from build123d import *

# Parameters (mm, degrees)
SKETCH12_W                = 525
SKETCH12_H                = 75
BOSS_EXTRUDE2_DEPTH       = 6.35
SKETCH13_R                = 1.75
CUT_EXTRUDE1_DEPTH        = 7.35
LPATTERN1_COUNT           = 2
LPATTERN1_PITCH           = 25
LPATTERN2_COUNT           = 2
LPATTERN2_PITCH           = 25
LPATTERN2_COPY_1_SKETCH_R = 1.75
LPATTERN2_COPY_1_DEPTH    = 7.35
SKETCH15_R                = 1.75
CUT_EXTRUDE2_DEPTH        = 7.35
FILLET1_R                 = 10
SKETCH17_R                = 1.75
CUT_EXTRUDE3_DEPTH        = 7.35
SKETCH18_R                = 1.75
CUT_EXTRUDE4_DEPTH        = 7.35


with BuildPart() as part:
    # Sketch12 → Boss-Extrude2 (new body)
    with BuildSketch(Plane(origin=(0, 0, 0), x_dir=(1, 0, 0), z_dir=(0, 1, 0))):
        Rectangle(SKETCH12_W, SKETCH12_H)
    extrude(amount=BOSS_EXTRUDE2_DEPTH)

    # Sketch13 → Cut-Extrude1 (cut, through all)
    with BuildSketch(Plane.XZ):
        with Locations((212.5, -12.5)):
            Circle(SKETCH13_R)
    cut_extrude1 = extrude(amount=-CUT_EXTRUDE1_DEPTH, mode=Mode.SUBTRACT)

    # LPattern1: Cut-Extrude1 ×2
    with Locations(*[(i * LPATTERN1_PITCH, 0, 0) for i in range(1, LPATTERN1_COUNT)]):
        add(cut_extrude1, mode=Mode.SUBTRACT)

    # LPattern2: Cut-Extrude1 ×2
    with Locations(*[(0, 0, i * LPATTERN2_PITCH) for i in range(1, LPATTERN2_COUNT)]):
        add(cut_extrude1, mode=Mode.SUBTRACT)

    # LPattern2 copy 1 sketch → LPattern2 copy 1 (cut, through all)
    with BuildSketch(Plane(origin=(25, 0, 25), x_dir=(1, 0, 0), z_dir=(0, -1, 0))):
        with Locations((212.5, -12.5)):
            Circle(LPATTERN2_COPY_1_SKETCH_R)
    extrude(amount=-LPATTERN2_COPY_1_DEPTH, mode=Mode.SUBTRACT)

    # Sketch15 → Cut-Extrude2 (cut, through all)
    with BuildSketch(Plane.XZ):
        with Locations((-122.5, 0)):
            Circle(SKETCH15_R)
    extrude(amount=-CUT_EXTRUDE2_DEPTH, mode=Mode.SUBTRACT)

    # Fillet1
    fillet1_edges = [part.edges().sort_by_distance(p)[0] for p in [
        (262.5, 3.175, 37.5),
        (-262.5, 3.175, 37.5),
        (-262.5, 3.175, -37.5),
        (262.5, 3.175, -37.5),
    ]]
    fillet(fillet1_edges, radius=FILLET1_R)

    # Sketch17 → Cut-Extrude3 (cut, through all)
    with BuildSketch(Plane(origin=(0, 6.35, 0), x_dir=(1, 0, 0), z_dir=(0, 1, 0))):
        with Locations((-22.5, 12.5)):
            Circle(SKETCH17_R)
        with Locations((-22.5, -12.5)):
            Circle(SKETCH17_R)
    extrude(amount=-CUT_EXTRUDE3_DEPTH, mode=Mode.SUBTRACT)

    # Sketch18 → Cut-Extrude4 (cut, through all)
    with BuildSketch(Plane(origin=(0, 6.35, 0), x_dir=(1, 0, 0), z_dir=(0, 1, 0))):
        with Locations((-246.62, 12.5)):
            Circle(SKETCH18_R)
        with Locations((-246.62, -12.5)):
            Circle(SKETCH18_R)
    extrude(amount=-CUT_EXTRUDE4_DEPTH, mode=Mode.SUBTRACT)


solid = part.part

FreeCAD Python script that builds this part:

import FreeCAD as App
import Part
import Sketcher
Q = App.Units.Quantity


def edges_at(feature, points):
    """Names of the edges that pass closest to the given points."""
    edges = feature.Shape.Edges
    near = lambda p: min(range(len(edges)), key=lambda i: edges[i].distToShape(Part.Vertex(*p))[0])
    return sorted({f"Edge{near(p) + 1}" for p in points})


def add_polygon(sketch, points):
    """Adds a closed chain of lines whose ends are joined by coincident constraints."""
    first, n = sketch.GeometryCount, len(points)
    for a, b in zip(points, points[1:] + points[:1]):
        sketch.addGeometry(Part.LineSegment(App.Vector(*a, 0), App.Vector(*b, 0)), False)
    for i in range(n):
        sketch.addConstraint(Sketcher.Constraint("Coincident", first + i, 2, first + (i + 1) % n, 1))

doc = App.newDocument("Part")
body = doc.addObject("PartDesign::Body", "Body")

sketch1 = body.newObject("Sketcher::SketchObject", "Sketch")
sketch1.AttachmentSupport = (doc.getObject("XZ_Plane"), [""])
sketch1.MapMode = "FlatFace"
add_polygon(sketch1, [(-262, -38), (-262, 38), (262, 38), (262, -38)])
sketch1.addConstraint(Sketcher.Constraint("Vertical", 0))
sketch1.addConstraint(Sketcher.Constraint("Horizontal", 1))
sketch1.addConstraint(Sketcher.Constraint("Vertical", 2))
sketch1.addConstraint(Sketcher.Constraint("Horizontal", 3))
sketch1.addConstraint(Sketcher.Constraint("Symmetric", 0, 2, 2, 2, -1, 1))
sketch1.addConstraint(Sketcher.Constraint("DistanceX", 1, 1, 1, 2, Q("525 mm")))
sketch1.addConstraint(Sketcher.Constraint("DistanceY", 0, 1, 0, 2, Q("75 mm")))
pad1 = body.newObject("PartDesign::Pad", "Pad")
pad1.Profile = sketch1
pad1.Length = 6.35
pad1.Reversed = True

sketch2 = body.newObject("Sketcher::SketchObject", "Sketch001")
sketch2.AttachmentSupport = (doc.getObject("XZ_Plane"), [""])
sketch2.MapMode = "FlatFace"
sketch2.addGeometry(Part.Circle(App.Vector(212.5, -12.5, 0), App.Vector(0, 0, 1), 1.8), False)
sketch2.addConstraint(Sketcher.Constraint("Diameter", 0, Q("3.5 mm")))
sketch2.addConstraint(Sketcher.Constraint("DistanceX", -1, 1, 0, 3, Q("212.5 mm")))
sketch2.addConstraint(Sketcher.Constraint("DistanceY", 0, 3, -1, 1, Q("12.5 mm")))
pocket1 = body.newObject("PartDesign::Pocket", "Pocket")
pocket1.Profile = sketch2
pocket1.Type = "ThroughAll"
doc.recompute()

linearpattern = body.newObject("PartDesign::LinearPattern", "LinearPattern")
linearpattern.Originals = [pocket1]
linearpattern.Direction = (doc.getObject("X_Axis"), [""])
linearpattern.Mode = "offset"
linearpattern.Offset = 25
linearpattern.Occurrences = 2
body.Tip = linearpattern
doc.recompute()

linearpattern2 = body.newObject("PartDesign::LinearPattern", "LinearPattern001")
linearpattern2.Originals = [pocket1]
linearpattern2.Direction = (doc.getObject("Z_Axis"), [""])
linearpattern2.Mode = "offset"
linearpattern2.Offset = 25
linearpattern2.Occurrences = 2
body.Tip = linearpattern2

sketch3 = body.newObject("Sketcher::SketchObject", "Sketch002")
sketch3.AttachmentSupport = (doc.getObject("XZ_Plane"), [""])
sketch3.MapMode = "FlatFace"
sketch3.addGeometry(Part.Circle(App.Vector(237.5, 12.5, 0), App.Vector(0, 0, 1), 1.8), False)
sketch3.addConstraint(Sketcher.Constraint("Diameter", 0, Q("3.5 mm")))
sketch3.addConstraint(Sketcher.Constraint("DistanceX", -1, 1, 0, 3, Q("237.5 mm")))
sketch3.addConstraint(Sketcher.Constraint("DistanceY", -1, 1, 0, 3, Q("12.5 mm")))
pocket2 = body.newObject("PartDesign::Pocket", "Pocket001")
pocket2.Profile = sketch3
pocket2.Type = "ThroughAll"

sketch4 = body.newObject("Sketcher::SketchObject", "Sketch003")
sketch4.AttachmentSupport = (doc.getObject("XZ_Plane"), [""])
sketch4.MapMode = "FlatFace"
sketch4.addGeometry(Part.Circle(App.Vector(-122.5, 0, 0), App.Vector(0, 0, 1), 1.8), False)
sketch4.addConstraint(Sketcher.Constraint("PointOnObject", 0, 3, -1))
sketch4.addConstraint(Sketcher.Constraint("Diameter", 0, Q("3.5 mm")))
sketch4.addConstraint(Sketcher.Constraint("DistanceX", 0, 3, -1, 1, Q("122.5 mm")))
pocket3 = body.newObject("PartDesign::Pocket", "Pocket002")
pocket3.Profile = sketch4
pocket3.Type = "ThroughAll"
doc.recompute()

fillet = body.newObject("PartDesign::Fillet", "Fillet")
fillet.Base = (pocket3, edges_at(pocket3, [
    (262.5, 3.175, 37.5),
    (-262.5, 3.175, 37.5),
    (-262.5, 3.175, -37.5),
    (262.5, 3.175, -37.5),
]))
fillet.Radius = 10

sketch5 = body.newObject("Sketcher::SketchObject", "Sketch004")
sketch5.AttachmentSupport = (doc.getObject("XZ_Plane"), [""])
sketch5.MapMode = "FlatFace"
sketch5.AttachmentOffset = App.Placement(App.Vector(0, 0, -6.35), App.Rotation())
sketch5.addGeometry(Part.Circle(App.Vector(-22.5, -12.5, 0), App.Vector(0, 0, 1), 1.8), False)
sketch5.addGeometry(Part.Circle(App.Vector(-22.5, 12.5, 0), App.Vector(0, 0, 1), 1.8), False)
sketch5.addConstraint(Sketcher.Constraint("Equal", 0, 1))
sketch5.addConstraint(Sketcher.Constraint("Symmetric", 0, 3, 1, 3, -1))
sketch5.addConstraint(Sketcher.Constraint("Diameter", 0, Q("3.5 mm")))
sketch5.addConstraint(Sketcher.Constraint("DistanceY", 0, 3, 1, 3, Q("25 mm")))
sketch5.addConstraint(Sketcher.Constraint("DistanceX", 0, 3, -1, 1, Q("22.5 mm")))
pocket4 = body.newObject("PartDesign::Pocket", "Pocket003")
pocket4.Profile = sketch5
pocket4.Type = "ThroughAll"
pocket4.Reversed = True

sketch6 = body.newObject("Sketcher::SketchObject", "Sketch005")
sketch6.AttachmentSupport = (doc.getObject("XZ_Plane"), [""])
sketch6.MapMode = "FlatFace"
sketch6.AttachmentOffset = App.Placement(App.Vector(0, 0, -6.35), App.Rotation())
sketch6.addGeometry(Part.Circle(App.Vector(-246.6, -12.5, 0), App.Vector(0, 0, 1), 1.8), False)
sketch6.addGeometry(Part.Circle(App.Vector(-246.6, 12.5, 0), App.Vector(0, 0, 1), 1.8), False)
sketch6.addConstraint(Sketcher.Constraint("Equal", 0, 1))
sketch6.addConstraint(Sketcher.Constraint("Symmetric", 0, 3, 1, 3, -1))
sketch6.addConstraint(Sketcher.Constraint("Diameter", 0, Q("3.5 mm")))
sketch6.addConstraint(Sketcher.Constraint("DistanceY", 0, 3, 1, 3, Q("25 mm")))
sketch6.addConstraint(Sketcher.Constraint("DistanceX", 0, 3, -1, 1, Q("246.62 mm")))
pocket5 = body.newObject("PartDesign::Pocket", "Pocket004")
pocket5.Profile = sketch6
pocket5.Type = "ThroughAll"
pocket5.Reversed = True

doc.recompute()
